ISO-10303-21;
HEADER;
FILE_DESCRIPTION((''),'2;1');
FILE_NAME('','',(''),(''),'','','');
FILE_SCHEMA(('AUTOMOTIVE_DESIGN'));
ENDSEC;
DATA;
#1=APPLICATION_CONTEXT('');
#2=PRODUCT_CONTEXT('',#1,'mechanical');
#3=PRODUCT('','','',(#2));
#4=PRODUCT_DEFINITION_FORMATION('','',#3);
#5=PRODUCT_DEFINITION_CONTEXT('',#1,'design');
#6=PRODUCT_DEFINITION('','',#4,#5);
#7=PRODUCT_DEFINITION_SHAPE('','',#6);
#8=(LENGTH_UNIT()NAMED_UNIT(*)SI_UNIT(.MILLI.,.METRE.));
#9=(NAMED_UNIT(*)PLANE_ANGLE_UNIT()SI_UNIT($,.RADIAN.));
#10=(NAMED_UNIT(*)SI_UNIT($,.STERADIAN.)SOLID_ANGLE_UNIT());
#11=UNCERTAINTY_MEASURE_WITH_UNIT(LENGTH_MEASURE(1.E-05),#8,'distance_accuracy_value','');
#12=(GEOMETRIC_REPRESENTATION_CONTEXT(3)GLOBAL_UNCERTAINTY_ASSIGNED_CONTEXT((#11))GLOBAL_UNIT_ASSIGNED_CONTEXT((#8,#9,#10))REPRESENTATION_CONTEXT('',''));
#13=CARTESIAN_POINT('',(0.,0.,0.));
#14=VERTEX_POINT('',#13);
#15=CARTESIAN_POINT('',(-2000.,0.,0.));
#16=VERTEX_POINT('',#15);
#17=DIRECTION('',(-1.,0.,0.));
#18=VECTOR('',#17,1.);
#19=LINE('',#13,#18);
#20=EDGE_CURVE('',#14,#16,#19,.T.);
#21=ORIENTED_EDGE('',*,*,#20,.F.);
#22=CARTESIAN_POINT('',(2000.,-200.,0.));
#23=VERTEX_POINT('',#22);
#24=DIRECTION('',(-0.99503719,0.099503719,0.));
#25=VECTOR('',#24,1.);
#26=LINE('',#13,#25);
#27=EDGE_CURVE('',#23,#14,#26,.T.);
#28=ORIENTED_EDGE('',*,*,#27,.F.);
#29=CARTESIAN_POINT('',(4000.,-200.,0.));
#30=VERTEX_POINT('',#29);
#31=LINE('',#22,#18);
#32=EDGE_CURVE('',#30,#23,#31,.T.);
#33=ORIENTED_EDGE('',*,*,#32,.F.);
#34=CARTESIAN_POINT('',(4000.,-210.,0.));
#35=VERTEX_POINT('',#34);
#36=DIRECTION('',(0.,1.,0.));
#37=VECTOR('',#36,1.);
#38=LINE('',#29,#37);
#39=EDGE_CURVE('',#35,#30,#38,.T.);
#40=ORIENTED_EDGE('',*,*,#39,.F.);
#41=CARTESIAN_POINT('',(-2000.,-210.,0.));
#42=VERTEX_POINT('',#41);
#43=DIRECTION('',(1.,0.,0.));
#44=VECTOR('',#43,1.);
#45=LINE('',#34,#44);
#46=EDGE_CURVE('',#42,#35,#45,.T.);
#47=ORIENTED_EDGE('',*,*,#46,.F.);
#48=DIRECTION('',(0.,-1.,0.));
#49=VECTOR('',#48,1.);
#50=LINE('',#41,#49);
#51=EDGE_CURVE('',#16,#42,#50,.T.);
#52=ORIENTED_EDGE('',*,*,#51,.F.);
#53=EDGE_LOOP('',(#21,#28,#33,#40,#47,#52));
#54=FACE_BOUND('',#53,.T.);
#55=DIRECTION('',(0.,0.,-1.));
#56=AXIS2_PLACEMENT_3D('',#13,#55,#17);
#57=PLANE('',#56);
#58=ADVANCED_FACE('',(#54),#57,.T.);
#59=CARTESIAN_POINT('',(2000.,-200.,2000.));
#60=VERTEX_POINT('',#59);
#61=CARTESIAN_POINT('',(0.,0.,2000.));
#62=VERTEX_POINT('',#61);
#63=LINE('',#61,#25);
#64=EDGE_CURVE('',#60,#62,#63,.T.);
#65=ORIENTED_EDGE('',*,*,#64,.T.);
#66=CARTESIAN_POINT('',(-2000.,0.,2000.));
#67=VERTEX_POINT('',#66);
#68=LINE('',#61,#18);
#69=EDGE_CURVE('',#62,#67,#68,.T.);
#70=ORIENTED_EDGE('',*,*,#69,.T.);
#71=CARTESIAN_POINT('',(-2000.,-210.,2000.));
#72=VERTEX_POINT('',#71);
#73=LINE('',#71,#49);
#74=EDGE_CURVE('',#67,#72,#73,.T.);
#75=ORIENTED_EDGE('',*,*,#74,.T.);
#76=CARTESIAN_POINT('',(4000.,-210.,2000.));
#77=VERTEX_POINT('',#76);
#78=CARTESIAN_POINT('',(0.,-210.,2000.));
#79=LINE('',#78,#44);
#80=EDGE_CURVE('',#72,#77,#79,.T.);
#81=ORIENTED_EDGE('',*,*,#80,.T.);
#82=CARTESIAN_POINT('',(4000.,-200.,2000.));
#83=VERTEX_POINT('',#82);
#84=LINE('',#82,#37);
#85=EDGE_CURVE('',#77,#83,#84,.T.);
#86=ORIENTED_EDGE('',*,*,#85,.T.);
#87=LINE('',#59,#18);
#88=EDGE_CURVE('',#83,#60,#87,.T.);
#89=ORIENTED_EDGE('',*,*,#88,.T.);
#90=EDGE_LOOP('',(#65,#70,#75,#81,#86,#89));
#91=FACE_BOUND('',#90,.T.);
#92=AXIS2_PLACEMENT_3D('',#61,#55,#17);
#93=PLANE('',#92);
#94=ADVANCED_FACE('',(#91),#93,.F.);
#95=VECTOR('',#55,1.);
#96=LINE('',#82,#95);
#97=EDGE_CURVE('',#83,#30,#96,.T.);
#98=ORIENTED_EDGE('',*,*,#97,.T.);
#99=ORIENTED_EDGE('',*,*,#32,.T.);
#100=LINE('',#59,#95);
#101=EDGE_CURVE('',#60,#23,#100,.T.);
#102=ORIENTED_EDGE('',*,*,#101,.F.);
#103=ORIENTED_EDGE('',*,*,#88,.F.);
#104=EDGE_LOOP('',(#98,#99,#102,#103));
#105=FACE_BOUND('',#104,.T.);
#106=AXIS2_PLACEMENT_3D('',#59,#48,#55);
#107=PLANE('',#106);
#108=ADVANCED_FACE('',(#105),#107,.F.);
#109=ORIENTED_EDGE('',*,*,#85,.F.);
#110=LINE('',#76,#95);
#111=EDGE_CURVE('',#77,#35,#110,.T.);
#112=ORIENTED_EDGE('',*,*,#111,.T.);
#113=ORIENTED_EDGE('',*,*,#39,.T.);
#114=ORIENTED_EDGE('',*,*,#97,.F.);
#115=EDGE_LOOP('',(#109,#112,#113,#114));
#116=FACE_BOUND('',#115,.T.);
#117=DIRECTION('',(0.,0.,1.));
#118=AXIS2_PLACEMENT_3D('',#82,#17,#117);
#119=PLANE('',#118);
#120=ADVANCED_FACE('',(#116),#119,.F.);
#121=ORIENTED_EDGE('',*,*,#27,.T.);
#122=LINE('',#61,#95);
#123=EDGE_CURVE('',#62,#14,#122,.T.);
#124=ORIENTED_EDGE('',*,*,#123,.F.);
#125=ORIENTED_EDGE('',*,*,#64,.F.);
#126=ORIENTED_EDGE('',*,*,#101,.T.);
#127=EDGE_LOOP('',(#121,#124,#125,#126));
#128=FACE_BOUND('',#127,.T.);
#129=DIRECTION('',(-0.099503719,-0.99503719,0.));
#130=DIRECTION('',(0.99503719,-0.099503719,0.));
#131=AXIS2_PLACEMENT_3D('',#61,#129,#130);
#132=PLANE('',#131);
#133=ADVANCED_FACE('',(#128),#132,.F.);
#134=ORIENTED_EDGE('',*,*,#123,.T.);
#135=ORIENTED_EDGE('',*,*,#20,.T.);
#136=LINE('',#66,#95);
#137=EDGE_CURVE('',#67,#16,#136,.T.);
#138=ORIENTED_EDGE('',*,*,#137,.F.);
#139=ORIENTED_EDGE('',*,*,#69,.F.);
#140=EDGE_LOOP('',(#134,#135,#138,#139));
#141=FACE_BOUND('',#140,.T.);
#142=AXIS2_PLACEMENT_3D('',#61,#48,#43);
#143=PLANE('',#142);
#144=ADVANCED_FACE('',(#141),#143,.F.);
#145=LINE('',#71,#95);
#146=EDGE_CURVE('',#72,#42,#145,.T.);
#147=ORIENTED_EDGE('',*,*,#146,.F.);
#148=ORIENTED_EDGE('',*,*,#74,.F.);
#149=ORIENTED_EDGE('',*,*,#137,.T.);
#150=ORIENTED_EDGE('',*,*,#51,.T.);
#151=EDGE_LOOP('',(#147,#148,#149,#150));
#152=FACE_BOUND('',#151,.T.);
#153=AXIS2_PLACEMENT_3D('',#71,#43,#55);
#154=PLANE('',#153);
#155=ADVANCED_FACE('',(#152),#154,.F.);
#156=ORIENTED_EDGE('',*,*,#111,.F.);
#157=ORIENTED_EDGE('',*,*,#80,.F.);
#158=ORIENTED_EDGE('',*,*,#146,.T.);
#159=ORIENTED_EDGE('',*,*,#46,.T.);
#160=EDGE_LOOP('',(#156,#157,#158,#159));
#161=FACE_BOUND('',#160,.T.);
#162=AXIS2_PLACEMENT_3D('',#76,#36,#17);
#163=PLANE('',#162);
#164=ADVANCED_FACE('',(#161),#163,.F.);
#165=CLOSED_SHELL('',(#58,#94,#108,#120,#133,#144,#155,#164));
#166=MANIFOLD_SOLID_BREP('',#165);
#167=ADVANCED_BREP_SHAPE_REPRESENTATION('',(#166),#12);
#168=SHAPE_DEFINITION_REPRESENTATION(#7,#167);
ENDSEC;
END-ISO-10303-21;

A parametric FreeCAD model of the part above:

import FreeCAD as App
import Part
import Sketcher
Q = App.Units.Quantity

doc = App.newDocument("Part")
body = doc.addObject("PartDesign::Body", "Body")

sketch1 = body.newObject("Sketcher::SketchObject", "Sketch")
sketch1.AttachmentSupport = (doc.getObject("XY_Plane"), [""])
sketch1.MapMode = "FlatFace"
sketch1.addGeometry([
    Part.LineSegment(App.Vector(2000, -200, 0), App.Vector(0, 0, 0)),
    Part.LineSegment(App.Vector(0, 0, 0), App.Vector(-2000, 0, 0)),
    Part.LineSegment(App.Vector(-2000, 0, 0), App.Vector(-2000, -210, 0)),
    Part.LineSegment(App.Vector(-2000, -210, 0), App.Vector(4000, -210, 0)),
    Part.LineSegment(App.Vector(4000, -210, 0), App.Vector(4000, -200, 0)),
    Part.LineSegment(App.Vector(4000, -200, 0), App.Vector(2000, -200, 0)),
], False)
sketch1.addConstraint([
    Sketcher.Constraint("Coincident", 0, 2, 1, 1),
    Sketcher.Constraint("Coincident", 1, 2, 2, 1),
    Sketcher.Constraint("Coincident", 2, 2, 3, 1),
    Sketcher.Constraint("Coincident", 3, 2, 4, 1),
    Sketcher.Constraint("Coincident", 4, 2, 5, 1),
    Sketcher.Constraint("Coincident", 5, 2, 0, 1),
    Sketcher.Constraint("Horizontal", 1),
    Sketcher.Constraint("Vertical", 2),
    Sketcher.Constraint("Horizontal", 3),
    Sketcher.Constraint("Vertical", 4),
    Sketcher.Constraint("Horizontal", 5),
    Sketcher.Constraint("Coincident", 0, 2, -1, 1),
    Sketcher.Constraint("Equal", 1, 5),
    Sketcher.Constraint("DistanceX", 1, 2, 1, 1, Q("2000 mm")),
    Sketcher.Constraint("DistanceX", 3, 1, 3, 2, Q("6000 mm")),
    Sketcher.Constraint("DistanceY", 2, 2, 2, 1, Q("210 mm")),
    Sketcher.Constraint("DistanceY", 4, 1, 4, 2, Q("10 mm")),
])
pad1 = body.newObject("PartDesign::Pad", "Pad")
pad1.Profile = sketch1
pad1.Length = 2000

doc.recompute()
